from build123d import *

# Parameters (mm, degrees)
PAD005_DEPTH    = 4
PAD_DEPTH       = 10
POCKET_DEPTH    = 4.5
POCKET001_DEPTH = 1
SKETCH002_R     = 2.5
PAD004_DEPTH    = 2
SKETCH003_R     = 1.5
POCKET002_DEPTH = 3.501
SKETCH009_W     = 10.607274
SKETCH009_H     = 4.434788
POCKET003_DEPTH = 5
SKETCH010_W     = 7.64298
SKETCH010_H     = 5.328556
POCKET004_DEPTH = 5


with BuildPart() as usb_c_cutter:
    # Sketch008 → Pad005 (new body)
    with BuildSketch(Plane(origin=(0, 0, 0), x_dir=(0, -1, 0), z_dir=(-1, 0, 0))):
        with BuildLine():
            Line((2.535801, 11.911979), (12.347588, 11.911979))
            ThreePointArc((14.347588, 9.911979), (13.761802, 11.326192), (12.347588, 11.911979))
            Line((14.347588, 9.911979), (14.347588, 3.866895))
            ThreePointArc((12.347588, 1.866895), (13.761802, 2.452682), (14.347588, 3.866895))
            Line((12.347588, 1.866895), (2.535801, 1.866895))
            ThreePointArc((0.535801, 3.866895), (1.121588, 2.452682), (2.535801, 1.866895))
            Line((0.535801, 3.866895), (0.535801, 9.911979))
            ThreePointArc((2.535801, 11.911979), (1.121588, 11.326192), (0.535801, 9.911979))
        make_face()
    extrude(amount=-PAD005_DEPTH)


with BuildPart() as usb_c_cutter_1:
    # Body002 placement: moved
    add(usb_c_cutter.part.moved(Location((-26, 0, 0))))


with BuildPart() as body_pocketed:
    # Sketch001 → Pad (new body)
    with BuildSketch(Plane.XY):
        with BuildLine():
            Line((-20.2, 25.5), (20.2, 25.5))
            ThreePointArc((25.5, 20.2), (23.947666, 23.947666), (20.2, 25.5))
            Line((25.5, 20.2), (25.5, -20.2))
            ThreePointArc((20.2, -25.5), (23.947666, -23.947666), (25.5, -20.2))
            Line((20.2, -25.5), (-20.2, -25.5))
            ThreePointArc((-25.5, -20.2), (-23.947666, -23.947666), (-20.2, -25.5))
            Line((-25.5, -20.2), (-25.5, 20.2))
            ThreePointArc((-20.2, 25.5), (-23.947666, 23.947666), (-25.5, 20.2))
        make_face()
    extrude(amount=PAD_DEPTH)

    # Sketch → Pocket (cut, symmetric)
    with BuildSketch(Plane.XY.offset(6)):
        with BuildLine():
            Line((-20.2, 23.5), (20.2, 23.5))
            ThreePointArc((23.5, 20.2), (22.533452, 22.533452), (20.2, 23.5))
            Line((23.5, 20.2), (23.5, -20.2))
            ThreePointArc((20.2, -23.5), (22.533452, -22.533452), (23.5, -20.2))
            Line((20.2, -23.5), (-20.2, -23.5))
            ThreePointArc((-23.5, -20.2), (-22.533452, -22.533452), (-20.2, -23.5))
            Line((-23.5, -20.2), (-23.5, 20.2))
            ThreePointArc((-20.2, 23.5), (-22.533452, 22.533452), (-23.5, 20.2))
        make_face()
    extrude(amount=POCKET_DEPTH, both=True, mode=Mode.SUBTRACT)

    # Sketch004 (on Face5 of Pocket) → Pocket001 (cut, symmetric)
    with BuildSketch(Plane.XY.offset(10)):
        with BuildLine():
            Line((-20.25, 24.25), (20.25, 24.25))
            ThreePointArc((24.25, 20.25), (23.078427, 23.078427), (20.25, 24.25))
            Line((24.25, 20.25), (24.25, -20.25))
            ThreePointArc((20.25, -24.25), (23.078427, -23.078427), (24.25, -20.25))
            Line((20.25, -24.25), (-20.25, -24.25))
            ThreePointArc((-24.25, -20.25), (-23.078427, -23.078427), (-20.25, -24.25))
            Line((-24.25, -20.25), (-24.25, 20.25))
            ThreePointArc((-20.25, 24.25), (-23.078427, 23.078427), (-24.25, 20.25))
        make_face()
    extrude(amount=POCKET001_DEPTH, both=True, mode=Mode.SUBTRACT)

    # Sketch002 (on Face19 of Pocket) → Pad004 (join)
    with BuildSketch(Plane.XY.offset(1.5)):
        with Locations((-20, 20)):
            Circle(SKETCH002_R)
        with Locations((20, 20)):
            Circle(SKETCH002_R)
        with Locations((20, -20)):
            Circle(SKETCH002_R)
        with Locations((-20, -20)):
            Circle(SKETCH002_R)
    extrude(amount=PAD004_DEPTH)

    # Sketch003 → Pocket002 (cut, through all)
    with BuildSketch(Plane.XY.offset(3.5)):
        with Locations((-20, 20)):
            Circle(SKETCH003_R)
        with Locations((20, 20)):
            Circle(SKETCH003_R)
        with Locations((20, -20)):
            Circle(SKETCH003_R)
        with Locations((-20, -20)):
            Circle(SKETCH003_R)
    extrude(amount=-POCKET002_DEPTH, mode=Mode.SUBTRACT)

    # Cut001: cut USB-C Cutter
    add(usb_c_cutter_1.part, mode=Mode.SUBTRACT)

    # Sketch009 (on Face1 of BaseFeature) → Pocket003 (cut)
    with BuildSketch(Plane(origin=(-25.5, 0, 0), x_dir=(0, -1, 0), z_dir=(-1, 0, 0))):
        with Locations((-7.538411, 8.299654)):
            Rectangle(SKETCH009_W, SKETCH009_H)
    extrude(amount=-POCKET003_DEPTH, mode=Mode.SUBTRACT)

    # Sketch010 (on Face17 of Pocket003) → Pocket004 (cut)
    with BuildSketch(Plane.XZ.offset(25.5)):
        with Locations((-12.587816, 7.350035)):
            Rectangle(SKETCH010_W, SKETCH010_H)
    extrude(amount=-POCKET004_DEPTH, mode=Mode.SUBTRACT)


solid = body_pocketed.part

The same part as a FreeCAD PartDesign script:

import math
import FreeCAD as App
import Part
import Sketcher
from FreeCAD import Vector

doc = App.newDocument("Part")
params = doc.addObject("Spreadsheet::Sheet", "Params")
for row, (alias, value) in enumerate([
    ("sketch1_radius", "2.000002 mm"),
    ("pad1_length", "4 mm"),
    ("sketch2_radius", "5.3 mm"),
    ("sketch2_width", "40.4 mm"),
    ("pad2_length", "10 mm"),
    ("sketch3_radius", "3.300001 mm"),
    ("sketch3_width", "40.4 mm"),
    ("pocket1_length", "9 mm"),
    ("sketch4_radius", "4 mm"),
    ("sketch4_width", "40.5 mm"),
    ("pocket2_length", "2 mm"),
    ("sketch5_diameter", "5 mm"),
    ("pad3_length", "2 mm"),
    ("sketch6_diameter", "3 mm"),
    ("pocket4_length", "5 mm"),
    ("pocket5_length", "5 mm"),
], start=1):
    params.set(f"A{row}", alias)
    params.set(f"B{row}", "=" + value)
    params.setAlias(f"B{row}", alias)

body = doc.addObject("PartDesign::Body", "Body")

sketch1 = body.newObject("Sketcher::SketchObject", "Sketch")
sketch1.AttachmentSupport = (doc.getObject("YZ_Plane"), [""])
sketch1.MapMode = "FlatFace"
sketch1.addGeometry(Part.LineSegment(Vector(-12.347588, 11.911979, 0), Vector(-2.535801, 11.911979, 0)), False)
sketch1.addGeometry(Part.ArcOfCircle(Part.Circle(Vector(-2.535803, 9.911977, 0), Vector(0, 0, 1), 2.000002), math.radians(0.000055), math.radians(89.999945)), False)
sketch1.addGeometry(Part.LineSegment(Vector(-0.535801, 9.911979, 0), Vector(-0.535801, 3.866895, 0)), False)
sketch1.addGeometry(Part.ArcOfCircle(Part.Circle(Vector(-2.535803, 3.866897, 0), Vector(0, 0, 1), 2.000002), math.radians(-89.999945), math.radians(-0.000055)), False)
sketch1.addGeometry(Part.LineSegment(Vector(-2.535801, 1.866895, 0), Vector(-12.347588, 1.866895, 0)), False)
sketch1.addGeometry(Part.ArcOfCircle(Part.Circle(Vector(-12.347588, 3.866895, 0), Vector(0, 0, 1), 2), math.radians(-179.999994), math.radians(-90.000006)), False)
sketch1.addGeometry(Part.LineSegment(Vector(-14.347588, 3.866895, 0), Vector(-14.347588, 9.911979, 0)), False)
sketch1.addGeometry(Part.ArcOfCircle(Part.Circle(Vector(-12.347588, 9.911979, 0), Vector(0, 0, 1), 2), math.radians(90.000006), math.radians(179.999994)), False)
sketch1.addConstraint(Sketcher.Constraint("Tangent", 0, 2, 1, 2))
sketch1.addConstraint(Sketcher.Constraint("Tangent", 1, 1, 2, 1))
sketch1.addConstraint(Sketcher.Constraint("Tangent", 2, 2, 3, 2))
sketch1.addConstraint(Sketcher.Constraint("Tangent", 3, 1, 4, 1))
sketch1.addConstraint(Sketcher.Constraint("Tangent", 4, 2, 5, 2))
sketch1.addConstraint(Sketcher.Constraint("Tangent", 5, 1, 6, 1))
sketch1.addConstraint(Sketcher.Constraint("Tangent", 6, 2, 7, 2))
sketch1.addConstraint(Sketcher.Constraint("Tangent", 7, 1, 0, 1))
sketch1.addConstraint(Sketcher.Constraint("Horizontal", 0))
sketch1.addConstraint(Sketcher.Constraint("Vertical", 2))
sketch1.addConstraint(Sketcher.Constraint("Horizontal", 4))
sketch1.addConstraint(Sketcher.Constraint("Vertical", 6))
sketch1.addConstraint(Sketcher.Constraint("Equal", 1, 3))
sketch1.addConstraint(Sketcher.Constraint("Equal", 3, 5))
sketch1.addConstraint(Sketcher.Constraint("Equal", 5, 7))
sketch1.addConstraint(Sketcher.Constraint("Radius", 1, 2.000002))
sketch1.addConstraint(Sketcher.Constraint("DistanceX", 0, 2, -1, 1, 2.535801))
sketch1.addConstraint(Sketcher.Constraint("DistanceX", 0, 1, 0, 2, 9.811787))
sketch1.addConstraint(Sketcher.Constraint("DistanceY", 2, 2, 2, 1, 6.045084))
sketch1.addConstraint(Sketcher.Constraint("DistanceY", -1, 1, 7, 3, 9.911979))
sketch1.setExpression("Constraints[15]", "Params.sketch1_radius")
pad1 = body.newObject("PartDesign::Pad", "Pad")
pad1.Profile = sketch1
pad1.setExpression("Length", "Params.pad1_length")
body2 = doc.addObject("PartDesign::Body", "Body001")
doc.recompute()

body.Placement = App.Placement(Vector(-26, 0, 0), App.Rotation(Vector(0, 0, 1), 0))
boolean = body2.newObject("PartDesign::Boolean", "Boolean")
boolean.Type = "Fuse"
boolean.addObjects([body])
body3 = doc.addObject("PartDesign::Body", "Body002")

sketch2 = body3.newObject("Sketcher::SketchObject", "Sketch001")
sketch2.AttachmentSupport = (doc.getObject("XY_Plane002"), [""])
sketch2.MapMode = "FlatFace"
sketch2.addGeometry(Part.LineSegment(Vector(20.2, 25.5, 0), Vector(-20.2, 25.5, 0)), False)
sketch2.addGeometry(Part.ArcOfCircle(Part.Circle(Vector(-20.2, 20.2, 0), Vector(0, 0, 1), 5.3), math.radians(89.999998), math.radians(180.000002)), False)
sketch2.addGeometry(Part.LineSegment(Vector(-25.5, 20.2, 0), Vector(-25.5, -20.2, 0)), False)
sketch2.addGeometry(Part.ArcOfCircle(Part.Circle(Vector(-20.2, -20.2, 0), Vector(0, 0, 1), 5.3), math.radians(179.999998), math.radians(270.000002)), False)
sketch2.addGeometry(Part.LineSegment(Vector(-20.2, -25.5, 0), Vector(20.2, -25.5, 0)), False)
sketch2.addGeometry(Part.ArcOfCircle(Part.Circle(Vector(20.2, -20.2, 0), Vector(0, 0, 1), 5.3), math.radians(-90.000002), math.radians(0.000002)), False)
sketch2.addGeometry(Part.LineSegment(Vector(25.5, -20.2, 0), Vector(25.5, 20.2, 0)), False)
sketch2.addGeometry(Part.ArcOfCircle(Part.Circle(Vector(20.2, 20.2, 0), Vector(0, 0, 1), 5.3), math.radians(-0.000002), math.radians(90.000002)), False)
sketch2.addConstraint(Sketcher.Constraint("Tangent", 0, 2, 1, 1))
sketch2.addConstraint(Sketcher.Constraint("Tangent", 1, 2, 2, 1))
sketch2.addConstraint(Sketcher.Constraint("Tangent", 2, 2, 3, 1))
sketch2.addConstraint(Sketcher.Constraint("Tangent", 3, 2, 4, 1))
sketch2.addConstraint(Sketcher.Constraint("Tangent", 4, 2, 5, 1))
sketch2.addConstraint(Sketcher.Constraint("Tangent", 5, 2, 6, 1))
sketch2.addConstraint(Sketcher.Constraint("Tangent", 6, 2, 7, 1))
sketch2.addConstraint(Sketcher.Constraint("Tangent", 7, 2, 0, 1))
sketch2.addConstraint(Sketcher.Constraint("Horizontal", 0))
sketch2.addConstraint(Sketcher.Constraint("Vertical", 2))
sketch2.addConstraint(Sketcher.Constraint("Horizontal", 4))
sketch2.addConstraint(Sketcher.Constraint("Vertical", 6))
sketch2.addConstraint(Sketcher.Constraint("Equal", 1, 3))
sketch2.addConstraint(Sketcher.Constraint("Equal", 3, 5))
sketch2.addConstraint(Sketcher.Constraint("Equal", 5, 7))
sketch2.addConstraint(Sketcher.Constraint("Symmetric", 1, 3, 5, 3, -1, 1))
sketch2.addConstraint(Sketcher.Constraint("Equal", 4, 2))
sketch2.addConstraint(Sketcher.Constraint("Radius", 1, 5.3))
sketch2.addConstraint(Sketcher.Constraint("DistanceX", 0, 2, 0, 1, 40.4))
sketch2.setExpression("Constraints[17]", "Params.sketch2_radius")
sketch2.setExpression("Constraints[18]", "Params.sketch2_width")
pad2 = body3.newObject("PartDesign::Pad", "Pad001")
pad2.Profile = sketch2
pad2.setExpression("Length", "Params.pad2_length")

sketch3 = body3.newObject("Sketcher::SketchObject", "Sketch002")
sketch3.AttachmentSupport = (doc.getObject("XY_Plane002"), [""])
sketch3.MapMode = "FlatFace"
sketch3.AttachmentOffset = App.Placement(Vector(0, 0, 6), App.Rotation())
sketch3.addGeometry(Part.LineSegment(Vector(20.2, 23.5, 0), Vector(-20.2, 23.5, 0)), False)
sketch3.addGeometry(Part.ArcOfCircle(Part.Circle(Vector(-20.199999, 20.199999, 0), Vector(0, 0, 1), 3.300001), math.radians(90.000022), math.radians(179.999978)), False)
sketch3.addGeometry(Part.LineSegment(Vector(-23.5, 20.2, 0), Vector(-23.5, -20.2, 0)), False)
sketch3.addGeometry(Part.ArcOfCircle(Part.Circle(Vector(-20.199999, -20.199999, 0), Vector(0, 0, 1), 3.300001), math.radians(-179.999978), math.radians(-90.000022)), False)
sketch3.addGeometry(Part.LineSegment(Vector(-20.2, -23.5, 0), Vector(20.2, -23.5, 0)), False)
sketch3.addGeometry(Part.ArcOfCircle(Part.Circle(Vector(20.199999, -20.199999, 0), Vector(0, 0, 1), 3.300001), math.radians(-89.999978), math.radians(-0.000022)), False)
sketch3.addGeometry(Part.LineSegment(Vector(23.5, -20.2, 0), Vector(23.5, 20.2, 0)), False)
sketch3.addGeometry(Part.ArcOfCircle(Part.Circle(Vector(20.199999, 20.199999, 0), Vector(0, 0, 1), 3.300001), math.radians(0.000022), math.radians(89.999978)), False)
sketch3.addConstraint(Sketcher.Constraint("Tangent", 0, 2, 1, 1))
sketch3.addConstraint(Sketcher.Constraint("Tangent", 1, 2, 2, 1))
sketch3.addConstraint(Sketcher.Constraint("Tangent", 2, 2, 3, 1))
sketch3.addConstraint(Sketcher.Constraint("Tangent", 3, 2, 4, 1))
sketch3.addConstraint(Sketcher.Constraint("Tangent", 4, 2, 5, 1))
sketch3.addConstraint(Sketcher.Constraint("Tangent", 5, 2, 6, 1))
sketch3.addConstraint(Sketcher.Constraint("Tangent", 6, 2, 7, 1))
sketch3.addConstraint(Sketcher.Constraint("Tangent", 7, 2, 0, 1))
sketch3.addConstraint(Sketcher.Constraint("Horizontal", 0))
sketch3.addConstraint(Sketcher.Constraint("Vertical", 2))
sketch3.addConstraint(Sketcher.Constraint("Horizontal", 4))
sketch3.addConstraint(Sketcher.Constraint("Vertical", 6))
sketch3.addConstraint(Sketcher.Constraint("Equal", 1, 3))
sketch3.addConstraint(Sketcher.Constraint("Equal", 3, 5))
sketch3.addConstraint(Sketcher.Constraint("Equal", 5, 7))
sketch3.addConstraint(Sketcher.Constraint("Symmetric", 1, 3, 5, 3, -1, 1))
sketch3.addConstraint(Sketcher.Constraint("Equal", 4, 2))
sketch3.addConstraint(Sketcher.Constraint("Radius", 1, 3.300001))
sketch3.addConstraint(Sketcher.Constraint("DistanceX", 0, 2, 0, 1, 40.4))
sketch3.setExpression("Constraints[17]", "Params.sketch3_radius")
sketch3.setExpression("Constraints[18]", "Params.sketch3_width")
pocket1 = body3.newObject("PartDesign::Pocket", "Pocket")
pocket1.Profile = sketch3
pocket1.setExpression("Length", "Params.pocket1_length")
pocket1.Midplane = True

sketch4 = body3.newObject("Sketcher::SketchObject", "Sketch003")
sketch4.AttachmentSupport = (doc.getObject("XY_Plane002"), [""])
sketch4.MapMode = "FlatFace"
sketch4.AttachmentOffset = App.Placement(Vector(0, 0, 10), App.Rotation())
sketch4.addGeometry(Part.LineSegment(Vector(20.25, 24.25, 0), Vector(-20.25, 24.25, 0)), False)
sketch4.addGeometry(Part.ArcOfCircle(Part.Circle(Vector(-20.25, 20.25, 0), Vector(0, 0, 1), 4), math.radians(90.000006), math.radians(179.999994)), False)
sketch4.addGeometry(Part.LineSegment(Vector(-24.25, 20.25, 0), Vector(-24.25, -20.25, 0)), False)
sketch4.addGeometry(Part.ArcOfCircle(Part.Circle(Vector(-20.25, -20.25, 0), Vector(0, 0, 1), 4), math.radians(-179.999994), math.radians(-90.000006)), False)
sketch4.addGeometry(Part.LineSegment(Vector(-20.25, -24.25, 0), Vector(20.25, -24.25, 0)), False)
sketch4.addGeometry(Part.ArcOfCircle(Part.Circle(Vector(20.25, -20.25, 0), Vector(0, 0, 1), 4), math.radians(-89.999994), math.radians(-0.000006)), False)
sketch4.addGeometry(Part.LineSegment(Vector(24.25, -20.25, 0), Vector(24.25, 20.25, 0)), False)
sketch4.addGeometry(Part.ArcOfCircle(Part.Circle(Vector(20.25, 20.25, 0), Vector(0, 0, 1), 4), math.radians(0.000006), math.radians(89.999994)), False)
sketch4.addConstraint(Sketcher.Constraint("Tangent", 0, 2, 1, 1))
sketch4.addConstraint(Sketcher.Constraint("Tangent", 1, 2, 2, 1))
sketch4.addConstraint(Sketcher.Constraint("Tangent", 2, 2, 3, 1))
sketch4.addConstraint(Sketcher.Constraint("Tangent", 3, 2, 4, 1))
sketch4.addConstraint(Sketcher.Constraint("Tangent", 4, 2, 5, 1))
sketch4.addConstraint(Sketcher.Constraint("Tangent", 5, 2, 6, 1))
sketch4.addConstraint(Sketcher.Constraint("Tangent", 6, 2, 7, 1))
sketch4.addConstraint(Sketcher.Constraint("Tangent", 7, 2, 0, 1))
sketch4.addConstraint(Sketcher.Constraint("Horizontal", 0))
sketch4.addConstraint(Sketcher.Constraint("Vertical", 2))
sketch4.addConstraint(Sketcher.Constraint("Horizontal", 4))
sketch4.addConstraint(Sketcher.Constraint("Vertical", 6))
sketch4.addConstraint(Sketcher.Constraint("Equal", 1, 3))
sketch4.addConstraint(Sketcher.Constraint("Equal", 3, 5))
sketch4.addConstraint(Sketcher.Constraint("Equal", 5, 7))
sketch4.addConstraint(Sketcher.Constraint("Symmetric", 1, 3, 5, 3, -1, 1))
sketch4.addConstraint(Sketcher.Constraint("Equal", 4, 2))
sketch4.addConstraint(Sketcher.Constraint("Radius", 1, 4.0))
sketch4.addConstraint(Sketcher.Constraint("DistanceX", 0, 2, 0, 1, 40.5))
sketch4.setExpression("Constraints[17]", "Params.sketch4_radius")
sketch4.setExpression("Constraints[18]", "Params.sketch4_width")
pocket2 = body3.newObject("PartDesign::Pocket", "Pocket001")
pocket2.Profile = sketch4
pocket2.setExpression("Length", "Params.pocket2_length")
pocket2.Midplane = True

sketch5 = body3.newObject("Sketcher::SketchObject", "Sketch004")
sketch5.AttachmentSupport = (doc.getObject("XY_Plane002"), [""])
sketch5.MapMode = "FlatFace"
sketch5.AttachmentOffset = App.Placement(Vector(0, 0, 1.5), App.Rotation())
sketch5.addGeometry(Part.Circle(Vector(-20, 20, 0), Vector(0, 0, 1), 2.5), False)
sketch5.addGeometry(Part.Circle(Vector(20, 20, 0), Vector(0, 0, 1), 2.5), False)
sketch5.addGeometry(Part.Circle(Vector(20, -20, 0), Vector(0, 0, 1), 2.5), False)
sketch5.addGeometry(Part.Circle(Vector(-20, -20, 0), Vector(0, 0, 1), 2.5), False)
sketch5.addConstraint(Sketcher.Constraint("Equal", 0, 1))
sketch5.addConstraint(Sketcher.Constraint("Equal", 1, 2))
sketch5.addConstraint(Sketcher.Constraint("Equal", 2, 3))
sketch5.addConstraint(Sketcher.Constraint("Symmetric", 0, 3, 2, 3, -1, 1))
sketch5.addConstraint(Sketcher.Constraint("Symmetric", 1, 3, 3, 3, -1, 1))
sketch5.addConstraint(Sketcher.Constraint("Symmetric", 0, 3, 1, 3, -2))
sketch5.addConstraint(Sketcher.Constraint("Diameter", 0, 5.0))
sketch5.addConstraint(Sketcher.Constraint("DistanceX", 0, 3, -1, 1, 20.0))
sketch5.addConstraint(Sketcher.Constraint("DistanceY", -1, 1, 0, 3, 20.0))
sketch5.setExpression("Constraints[6]", "Params.sketch5_diameter")
pad3 = body3.newObject("PartDesign::Pad", "Pad002")
pad3.Profile = sketch5
pad3.setExpression("Length", "Params.pad3_length")

sketch6 = body3.newObject("Sketcher::SketchObject", "Sketch005")
sketch6.AttachmentSupport = (doc.getObject("XY_Plane002"), [""])
sketch6.MapMode = "FlatFace"
sketch6.AttachmentOffset = App.Placement(Vector(0, 0, 3.5), App.Rotation())
sketch6.addGeometry(Part.Circle(Vector(-20, 20, 0), Vector(0, 0, 1), 1.5), False)
sketch6.addGeometry(Part.Circle(Vector(20, 20, 0), Vector(0, 0, 1), 1.5), False)
sketch6.addGeometry(Part.Circle(Vector(20, -20, 0), Vector(0, 0, 1), 1.5), False)
sketch6.addGeometry(Part.Circle(Vector(-20, -20, 0), Vector(0, 0, 1), 1.5), False)
sketch6.addConstraint(Sketcher.Constraint("Equal", 0, 1))
sketch6.addConstraint(Sketcher.Constraint("Equal", 1, 2))
sketch6.addConstraint(Sketcher.Constraint("Equal", 2, 3))
sketch6.addConstraint(Sketcher.Constraint("Symmetric", 0, 3, 2, 3, -1, 1))
sketch6.addConstraint(Sketcher.Constraint("Symmetric", 1, 3, 3, 3, -1, 1))
sketch6.addConstraint(Sketcher.Constraint("Symmetric", 0, 3, 1, 3, -2))
sketch6.addConstraint(Sketcher.Constraint("Diameter", 0, 3.0))
sketch6.addConstraint(Sketcher.Constraint("DistanceX", 0, 3, -1, 1, 20.0))
sketch6.addConstraint(Sketcher.Constraint("DistanceY", -1, 1, 0, 3, 20.0))
sketch6.setExpression("Constraints[6]", "Params.sketch6_diameter")
pocket3 = body3.newObject("PartDesign::Pocket", "Pocket002")
pocket3.Profile = sketch6
pocket3.Type = "ThroughAll"
doc.recompute()

boolean2 = body3.newObject("PartDesign::Boolean", "Boolean001")
boolean2.Type = "Cut"
boolean2.addObjects([body2])

sketch7 = body3.newObject("Sketcher::SketchObject", "Sketch006")
sketch7.AttachmentSupport = (doc.getObject("YZ_Plane002"), [""])
sketch7.MapMode = "FlatFace"
sketch7.AttachmentOffset = App.Placement(Vector(0, 0, -25.5), App.Rotation())
sketch7.addGeometry(Part.LineSegment(Vector(12.842048, 10.517048, 0), Vector(12.842048, 6.08226, 0)), False)
sketch7.addGeometry(Part.LineSegment(Vector(12.842048, 6.08226, 0), Vector(2.234774, 6.08226, 0)), False)
sketch7.addGeometry(Part.LineSegment(Vector(2.234774, 6.08226, 0), Vector(2.234774, 10.517048, 0)), False)
sketch7.addGeometry(Part.LineSegment(Vector(2.234774, 10.517048, 0), Vector(12.842048, 10.517048, 0)), False)
sketch7.addConstraint(Sketcher.Constraint("Coincident", 0, 2, 1, 1))
sketch7.addConstraint(Sketcher.Constraint("Coincident", 1, 2, 2, 1))
sketch7.addConstraint(Sketcher.Constraint("Coincident", 2, 2, 3, 1))
sketch7.addConstraint(Sketcher.Constraint("Coincident", 3, 2, 0, 1))
sketch7.addConstraint(Sketcher.Constraint("Vertical", 0))
sketch7.addConstraint(Sketcher.Constraint("Horizontal", 1))
sketch7.addConstraint(Sketcher.Constraint("Vertical", 2))
sketch7.addConstraint(Sketcher.Constraint("Horizontal", 3))
sketch7.addConstraint(Sketcher.Constraint("DistanceY", 0, 2, 0, 1, 4.434788))
sketch7.addConstraint(Sketcher.Constraint("DistanceX", 1, 2, 1, 1, 10.607274))
sketch7.addConstraint(Sketcher.Constraint("DistanceY", -1, 1, 0, 2, 6.08226))
sketch7.addConstraint(Sketcher.Constraint("DistanceX", -1, 1, 0, 2, 12.842048))
pocket4 = body3.newObject("PartDesign::Pocket", "Pocket003")
pocket4.Profile = sketch7
pocket4.setExpression("Length", "Params.pocket4_length")
pocket4.Reversed = True

sketch8 = body3.newObject("Sketcher::SketchObject", "Sketch007")
sketch8.AttachmentSupport = (doc.getObject("XZ_Plane002"), [""])
sketch8.MapMode = "FlatFace"
sketch8.AttachmentOffset = App.Placement(Vector(0, 0, 25.5), App.Rotation())
sketch8.addGeometry(Part.LineSegment(Vector(-16.409306, 10.014313, 0), Vector(-16.409306, 4.685757, 0)), False)
sketch8.addGeometry(Part.LineSegment(Vector(-16.409306, 4.685757, 0), Vector(-8.766326, 4.685757, 0)), False)
sketch8.addGeometry(Part.LineSegment(Vector(-8.766326, 4.685757, 0), Vector(-8.766326, 10.014313, 0)), False)
sketch8.addGeometry(Part.LineSegment(Vector(-8.766326, 10.014313, 0), Vector(-16.409306, 10.014313, 0)), False)
sketch8.addConstraint(Sketcher.Constraint("Coincident", 0, 2, 1, 1))
sketch8.addConstraint(Sketcher.Constraint("Coincident", 1, 2, 2, 1))
sketch8.addConstraint(Sketcher.Constraint("Coincident", 2, 2, 3, 1))
sketch8.addConstraint(Sketcher.Constraint("Coincident", 3, 2, 0, 1))
sketch8.addConstraint(Sketcher.Constraint("Vertical", 0))
sketch8.addConstraint(Sketcher.Constraint("Horizontal", 1))
sketch8.addConstraint(Sketcher.Constraint("Vertical", 2))
sketch8.addConstraint(Sketcher.Constraint("Horizontal", 3))
sketch8.addConstraint(Sketcher.Constraint("DistanceX", 1, 1, 1, 2, 7.64298))
sketch8.addConstraint(Sketcher.Constraint("DistanceY", 0, 2, 0, 1, 5.328556))
sketch8.addConstraint(Sketcher.Constraint("DistanceX", 0, 2, -1, 1, 16.409306))
sketch8.addConstraint(Sketcher.Constraint("DistanceY", -1, 1, 0, 2, 4.685757))
pocket5 = body3.newObject("PartDesign::Pocket", "Pocket004")
pocket5.Profile = sketch8
pocket5.setExpression("Length", "Params.pocket5_length")

doc.recompute()
